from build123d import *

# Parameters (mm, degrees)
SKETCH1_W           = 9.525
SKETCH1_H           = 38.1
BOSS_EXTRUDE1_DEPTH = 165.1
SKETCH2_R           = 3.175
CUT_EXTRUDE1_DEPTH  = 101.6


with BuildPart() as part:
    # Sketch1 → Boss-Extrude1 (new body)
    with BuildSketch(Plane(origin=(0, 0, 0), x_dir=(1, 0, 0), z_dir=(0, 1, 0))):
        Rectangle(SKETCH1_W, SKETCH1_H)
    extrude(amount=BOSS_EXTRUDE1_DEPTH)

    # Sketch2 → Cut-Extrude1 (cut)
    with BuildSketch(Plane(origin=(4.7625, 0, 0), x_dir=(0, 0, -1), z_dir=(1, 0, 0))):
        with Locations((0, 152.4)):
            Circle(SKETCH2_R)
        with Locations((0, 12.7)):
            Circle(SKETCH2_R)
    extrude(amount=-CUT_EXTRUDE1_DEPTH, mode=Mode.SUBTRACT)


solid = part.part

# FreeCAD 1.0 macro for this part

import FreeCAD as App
import Part
import Sketcher

V = App.Vector
Q = App.Units.Quantity

doc = App.newDocument("Part")
body = doc.addObject("PartDesign::Body", "Body")

# Sketch on XZ plane
sketch1 = body.newObject("Sketcher::SketchObject", "Sketch")
sketch1.AttachmentSupport = (doc.getObject("XZ_Plane"), [""])
sketch1.MapMode = "FlatFace"
sketch1.addGeometry(Part.LineSegment(V(-4.7625, -19.05, 0), V(-4.7625, 19.05, 0)), False)
sketch1.addGeometry(Part.LineSegment(V(-4.7625, 19.05, 0), V(4.7625, 19.05, 0)), False)
sketch1.addGeometry(Part.LineSegment(V(4.7625, 19.05, 0), V(4.7625, -19.05, 0)), False)
sketch1.addGeometry(Part.LineSegment(V(4.7625, -19.05, 0), V(-4.7625, -19.05, 0)), False)
sketch1.addConstraint(Sketcher.Constraint("Coincident", 0, 2, 1, 1))
sketch1.addConstraint(Sketcher.Constraint("Coincident", 1, 2, 2, 1))
sketch1.addConstraint(Sketcher.Constraint("Coincident", 2, 2, 3, 1))
sketch1.addConstraint(Sketcher.Constraint("Coincident", 3, 2, 0, 1))
sketch1.addConstraint(Sketcher.Constraint("Vertical", 0))
sketch1.addConstraint(Sketcher.Constraint("Horizontal", 1))
sketch1.addConstraint(Sketcher.Constraint("Vertical", 2))
sketch1.addConstraint(Sketcher.Constraint("Horizontal", 3))
sketch1.addConstraint(Sketcher.Constraint("Symmetric", 0, 2, 2, 2, -1, 1))
sketch1.addConstraint(Sketcher.Constraint("DistanceY", 0, 1, 0, 2, Q("1.5 in")))
sketch1.addConstraint(Sketcher.Constraint("DistanceX", 1, 1, 1, 2, Q("0.375 in")))
pad1 = body.newObject("PartDesign::Pad", "Pad")
pad1.Profile = sketch1
pad1.Length = Q("6.5 in")
pad1.Reversed = True

# Sketch on YZ plane
sketch2 = body.newObject("Sketcher::SketchObject", "Sketch001")
sketch2.AttachmentSupport = (doc.getObject("YZ_Plane"), [""])
sketch2.MapMode = "FlatFace"
sketch2.AttachmentOffset = App.Placement(V(0, 0, 0.1875 * 25.4), App.Rotation())
sketch2.addGeometry(Part.Circle(V(152.4, 0, 0), V(0, 0, 1), 3.175), False)
sketch2.addGeometry(Part.Circle(V(12.7, 0, 0), V(0, 0, 1), 3.175), False)
sketch2.addConstraint(Sketcher.Constraint("Equal", 0, 1))
sketch2.addConstraint(Sketcher.Constraint("PointOnObject", 0, 3, -1))
sketch2.addConstraint(Sketcher.Constraint("PointOnObject", 1, 3, -1))
sketch2.addConstraint(Sketcher.Constraint("Diameter", 0, Q("0.25 in")))
sketch2.addConstraint(Sketcher.Constraint("DistanceX", -1, 1, 0, 3, Q("6 in")))
sketch2.addConstraint(Sketcher.Constraint("DistanceX", -1, 1, 1, 3, Q("0.5 in")))
pocket1 = body.newObject("PartDesign::Pocket", "Pocket")
pocket1.Profile = sketch2
pocket1.Length = Q("4 in")

doc.recompute()
